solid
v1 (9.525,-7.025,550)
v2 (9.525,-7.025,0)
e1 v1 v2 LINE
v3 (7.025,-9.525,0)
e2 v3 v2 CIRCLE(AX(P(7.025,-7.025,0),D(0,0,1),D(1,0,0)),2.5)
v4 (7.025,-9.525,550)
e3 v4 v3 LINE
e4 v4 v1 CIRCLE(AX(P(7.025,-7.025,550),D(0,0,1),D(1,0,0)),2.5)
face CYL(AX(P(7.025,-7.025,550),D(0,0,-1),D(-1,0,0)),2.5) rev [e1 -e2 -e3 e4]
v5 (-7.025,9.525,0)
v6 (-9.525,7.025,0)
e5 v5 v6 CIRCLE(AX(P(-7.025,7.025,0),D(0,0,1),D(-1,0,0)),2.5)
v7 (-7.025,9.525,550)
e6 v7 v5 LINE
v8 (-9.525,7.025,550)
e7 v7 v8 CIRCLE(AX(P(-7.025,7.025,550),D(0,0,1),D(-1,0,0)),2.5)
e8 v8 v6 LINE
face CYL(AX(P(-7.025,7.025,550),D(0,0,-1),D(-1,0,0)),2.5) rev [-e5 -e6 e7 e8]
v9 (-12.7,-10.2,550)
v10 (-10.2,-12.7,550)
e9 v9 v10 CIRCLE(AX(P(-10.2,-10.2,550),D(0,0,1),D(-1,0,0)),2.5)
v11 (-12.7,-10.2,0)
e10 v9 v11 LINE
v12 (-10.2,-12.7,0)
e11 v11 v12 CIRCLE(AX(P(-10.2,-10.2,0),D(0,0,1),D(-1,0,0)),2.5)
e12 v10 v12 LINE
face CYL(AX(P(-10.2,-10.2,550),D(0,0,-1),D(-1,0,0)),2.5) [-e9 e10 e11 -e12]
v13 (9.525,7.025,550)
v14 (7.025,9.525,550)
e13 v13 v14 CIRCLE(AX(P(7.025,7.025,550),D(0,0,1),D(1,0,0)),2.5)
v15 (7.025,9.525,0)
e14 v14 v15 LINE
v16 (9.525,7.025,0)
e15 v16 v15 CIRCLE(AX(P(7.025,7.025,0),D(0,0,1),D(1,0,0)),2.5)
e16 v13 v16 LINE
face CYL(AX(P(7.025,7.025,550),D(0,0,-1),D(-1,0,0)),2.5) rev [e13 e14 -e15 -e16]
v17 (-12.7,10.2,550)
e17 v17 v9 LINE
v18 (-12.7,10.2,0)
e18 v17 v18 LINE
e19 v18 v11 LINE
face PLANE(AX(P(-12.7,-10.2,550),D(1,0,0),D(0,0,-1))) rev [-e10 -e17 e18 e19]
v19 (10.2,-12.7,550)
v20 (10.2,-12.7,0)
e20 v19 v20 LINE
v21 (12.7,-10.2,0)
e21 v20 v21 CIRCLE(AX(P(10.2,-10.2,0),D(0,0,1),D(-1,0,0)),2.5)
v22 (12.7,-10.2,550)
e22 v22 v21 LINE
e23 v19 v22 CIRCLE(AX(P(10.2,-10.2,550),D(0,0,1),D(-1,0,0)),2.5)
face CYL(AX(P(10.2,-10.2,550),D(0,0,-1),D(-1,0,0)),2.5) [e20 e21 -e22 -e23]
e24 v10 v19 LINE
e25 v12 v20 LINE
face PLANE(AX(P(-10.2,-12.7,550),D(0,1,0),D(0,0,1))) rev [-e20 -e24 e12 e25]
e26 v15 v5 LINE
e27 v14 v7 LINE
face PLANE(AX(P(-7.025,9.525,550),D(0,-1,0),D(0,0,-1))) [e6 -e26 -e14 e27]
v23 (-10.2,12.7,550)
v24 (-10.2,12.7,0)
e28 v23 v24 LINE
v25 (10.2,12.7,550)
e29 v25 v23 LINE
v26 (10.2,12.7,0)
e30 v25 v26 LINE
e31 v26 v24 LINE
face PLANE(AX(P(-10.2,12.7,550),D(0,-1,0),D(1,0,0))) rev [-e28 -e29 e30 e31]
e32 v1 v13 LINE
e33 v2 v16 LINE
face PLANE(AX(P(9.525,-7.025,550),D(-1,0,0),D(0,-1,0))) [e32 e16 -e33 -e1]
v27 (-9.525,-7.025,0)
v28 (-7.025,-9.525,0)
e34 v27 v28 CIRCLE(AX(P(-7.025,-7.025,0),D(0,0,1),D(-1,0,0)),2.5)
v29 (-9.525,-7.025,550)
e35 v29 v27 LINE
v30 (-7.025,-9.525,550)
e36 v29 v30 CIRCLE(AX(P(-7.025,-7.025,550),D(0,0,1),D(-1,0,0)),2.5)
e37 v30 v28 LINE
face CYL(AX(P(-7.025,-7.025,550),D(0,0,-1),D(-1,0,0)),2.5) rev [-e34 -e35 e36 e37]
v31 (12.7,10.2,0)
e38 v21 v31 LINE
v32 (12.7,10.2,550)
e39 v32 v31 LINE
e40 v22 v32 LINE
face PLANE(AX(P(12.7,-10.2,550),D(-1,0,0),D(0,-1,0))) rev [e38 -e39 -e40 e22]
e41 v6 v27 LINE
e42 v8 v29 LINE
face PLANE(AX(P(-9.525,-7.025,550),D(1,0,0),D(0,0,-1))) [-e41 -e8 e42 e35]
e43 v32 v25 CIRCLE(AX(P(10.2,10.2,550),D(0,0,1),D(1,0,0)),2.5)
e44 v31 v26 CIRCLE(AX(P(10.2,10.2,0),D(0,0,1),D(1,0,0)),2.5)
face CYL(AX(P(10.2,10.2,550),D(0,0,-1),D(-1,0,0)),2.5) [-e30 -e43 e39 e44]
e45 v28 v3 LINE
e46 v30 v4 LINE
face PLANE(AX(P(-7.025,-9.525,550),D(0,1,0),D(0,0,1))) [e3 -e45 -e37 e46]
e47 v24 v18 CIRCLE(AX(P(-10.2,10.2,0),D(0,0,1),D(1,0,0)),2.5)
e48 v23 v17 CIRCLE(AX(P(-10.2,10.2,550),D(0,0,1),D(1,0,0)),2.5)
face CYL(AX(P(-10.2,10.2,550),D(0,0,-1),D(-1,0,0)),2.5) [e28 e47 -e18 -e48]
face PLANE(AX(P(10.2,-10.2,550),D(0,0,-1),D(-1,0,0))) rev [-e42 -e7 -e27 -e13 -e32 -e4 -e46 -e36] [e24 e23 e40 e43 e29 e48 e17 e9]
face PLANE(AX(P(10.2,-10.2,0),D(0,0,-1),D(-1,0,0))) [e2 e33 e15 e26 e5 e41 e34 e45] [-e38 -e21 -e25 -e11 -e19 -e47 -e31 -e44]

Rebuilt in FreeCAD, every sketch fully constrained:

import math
import FreeCAD as App
import Part
import Sketcher
from FreeCAD import Vector

doc = App.newDocument("Part")
body = doc.addObject("PartDesign::Body", "Body")

# Sketch on XY plane
sketch1 = body.newObject("Sketcher::SketchObject", "Sketch")
sketch1.AttachmentSupport = (doc.getObject("XY_Plane"), [""])
sketch1.MapMode = "FlatFace"
sketch1.addGeometry(Part.LineSegment(Vector(-10.2, -12.7, 0), Vector(10.2, -12.7, 0)), False)
sketch1.addGeometry(Part.ArcOfCircle(Part.Circle(Vector(10.2, -10.2, 0), Vector(0, 0, 1), 2.5), math.radians(-90), math.radians(0)), False)
sketch1.addGeometry(Part.LineSegment(Vector(12.7, -10.2, 0), Vector(12.7, 10.2, 0)), False)
sketch1.addGeometry(Part.ArcOfCircle(Part.Circle(Vector(10.2, 10.2, 0), Vector(0, 0, 1), 2.5), math.radians(0), math.radians(90)), False)
sketch1.addGeometry(Part.LineSegment(Vector(10.2, 12.7, 0), Vector(-10.2, 12.7, 0)), False)
sketch1.addGeometry(Part.ArcOfCircle(Part.Circle(Vector(-10.2, 10.2, 0), Vector(0, 0, 1), 2.5), math.radians(90), math.radians(180)), False)
sketch1.addGeometry(Part.LineSegment(Vector(-12.7, 10.2, 0), Vector(-12.7, -10.2, 0)), False)
sketch1.addGeometry(Part.ArcOfCircle(Part.Circle(Vector(-10.2, -10.2, 0), Vector(0, 0, 1), 2.5), math.radians(180), math.radians(270)), False)
sketch1.addGeometry(Part.LineSegment(Vector(7, -9.5, 0), Vector(-7, -9.5, 0)), False)
sketch1.addGeometry(Part.ArcOfCircle(Part.Circle(Vector(-7, -7, 0), Vector(0, 0, 1), 2.5), math.radians(180), math.radians(270)), False)
sketch1.addGeometry(Part.LineSegment(Vector(-9.5, -7, 0), Vector(-9.5, 7, 0)), False)
sketch1.addGeometry(Part.ArcOfCircle(Part.Circle(Vector(-7, 7, 0), Vector(0, 0, 1), 2.5), math.radians(90), math.radians(180)), False)
sketch1.addGeometry(Part.LineSegment(Vector(-7, 9.5, 0), Vector(7, 9.5, 0)), False)
sketch1.addGeometry(Part.ArcOfCircle(Part.Circle(Vector(7, 7, 0), Vector(0, 0, 1), 2.5), math.radians(0), math.radians(90)), False)
sketch1.addGeometry(Part.LineSegment(Vector(9.5, 7, 0), Vector(9.5, -7, 0)), False)
sketch1.addGeometry(Part.ArcOfCircle(Part.Circle(Vector(7, -7, 0), Vector(0, 0, 1), 2.5), math.radians(-90), math.radians(0)), False)
sketch1.addConstraint(Sketcher.Constraint("Tangent", 0, 2, 1, 1))
sketch1.addConstraint(Sketcher.Constraint("Tangent", 1, 2, 2, 1))
sketch1.addConstraint(Sketcher.Constraint("Tangent", 2, 2, 3, 1))
sketch1.addConstraint(Sketcher.Constraint("Tangent", 3, 2, 4, 1))
sketch1.addConstraint(Sketcher.Constraint("Tangent", 4, 2, 5, 1))
sketch1.addConstraint(Sketcher.Constraint("Tangent", 5, 2, 6, 1))
sketch1.addConstraint(Sketcher.Constraint("Tangent", 6, 2, 7, 1))
sketch1.addConstraint(Sketcher.Constraint("Tangent", 7, 2, 0, 1))
sketch1.addConstraint(Sketcher.Constraint("Tangent", 8, 2, 9, 2))
sketch1.addConstraint(Sketcher.Constraint("Tangent", 9, 1, 10, 1))
sketch1.addConstraint(Sketcher.Constraint("Tangent", 10, 2, 11, 2))
sketch1.addConstraint(Sketcher.Constraint("Tangent", 11, 1, 12, 1))
sketch1.addConstraint(Sketcher.Constraint("Tangent", 12, 2, 13, 2))
sketch1.addConstraint(Sketcher.Constraint("Tangent", 13, 1, 14, 1))
sketch1.addConstraint(Sketcher.Constraint("Tangent", 14, 2, 15, 2))
sketch1.addConstraint(Sketcher.Constraint("Tangent", 15, 1, 8, 1))
sketch1.addConstraint(Sketcher.Constraint("Horizontal", 0))
sketch1.addConstraint(Sketcher.Constraint("Vertical", 2))
sketch1.addConstraint(Sketcher.Constraint("Horizontal", 4))
sketch1.addConstraint(Sketcher.Constraint("Vertical", 6))
sketch1.addConstraint(Sketcher.Constraint("Horizontal", 8))
sketch1.addConstraint(Sketcher.Constraint("Vertical", 10))
sketch1.addConstraint(Sketcher.Constraint("Horizontal", 12))
sketch1.addConstraint(Sketcher.Constraint("Vertical", 14))
sketch1.addConstraint(Sketcher.Constraint("Equal", 1, 3))
sketch1.addConstraint(Sketcher.Constraint("Equal", 3, 5))
sketch1.addConstraint(Sketcher.Constraint("Equal", 5, 7))
sketch1.addConstraint(Sketcher.Constraint("Equal", 7, 9))
sketch1.addConstraint(Sketcher.Constraint("Equal", 9, 11))
sketch1.addConstraint(Sketcher.Constraint("Equal", 11, 13))
sketch1.addConstraint(Sketcher.Constraint("Equal", 13, 15))
sketch1.addConstraint(Sketcher.Constraint("Symmetric", 1, 3, 5, 3, -1, 1))
sketch1.addConstraint(Sketcher.Constraint("Symmetric", 9, 3, 13, 3, -1, 1))
sketch1.addConstraint(Sketcher.Constraint("Equal", 4, 2))
sketch1.addConstraint(Sketcher.Constraint("Equal", 12, 10))
sketch1.addConstraint(Sketcher.Constraint("Radius", 1, 2.5))
sketch1.addConstraint(Sketcher.Constraint("DistanceX", 0, 1, 0, 2, 20.4))
sketch1.addConstraint(Sketcher.Constraint("DistanceX", 8, 2, 8, 1, 14.05))
pad1 = body.newObject("PartDesign::Pad", "Pad")
pad1.Profile = sketch1
pad1.Length = 550

doc.recompute()
